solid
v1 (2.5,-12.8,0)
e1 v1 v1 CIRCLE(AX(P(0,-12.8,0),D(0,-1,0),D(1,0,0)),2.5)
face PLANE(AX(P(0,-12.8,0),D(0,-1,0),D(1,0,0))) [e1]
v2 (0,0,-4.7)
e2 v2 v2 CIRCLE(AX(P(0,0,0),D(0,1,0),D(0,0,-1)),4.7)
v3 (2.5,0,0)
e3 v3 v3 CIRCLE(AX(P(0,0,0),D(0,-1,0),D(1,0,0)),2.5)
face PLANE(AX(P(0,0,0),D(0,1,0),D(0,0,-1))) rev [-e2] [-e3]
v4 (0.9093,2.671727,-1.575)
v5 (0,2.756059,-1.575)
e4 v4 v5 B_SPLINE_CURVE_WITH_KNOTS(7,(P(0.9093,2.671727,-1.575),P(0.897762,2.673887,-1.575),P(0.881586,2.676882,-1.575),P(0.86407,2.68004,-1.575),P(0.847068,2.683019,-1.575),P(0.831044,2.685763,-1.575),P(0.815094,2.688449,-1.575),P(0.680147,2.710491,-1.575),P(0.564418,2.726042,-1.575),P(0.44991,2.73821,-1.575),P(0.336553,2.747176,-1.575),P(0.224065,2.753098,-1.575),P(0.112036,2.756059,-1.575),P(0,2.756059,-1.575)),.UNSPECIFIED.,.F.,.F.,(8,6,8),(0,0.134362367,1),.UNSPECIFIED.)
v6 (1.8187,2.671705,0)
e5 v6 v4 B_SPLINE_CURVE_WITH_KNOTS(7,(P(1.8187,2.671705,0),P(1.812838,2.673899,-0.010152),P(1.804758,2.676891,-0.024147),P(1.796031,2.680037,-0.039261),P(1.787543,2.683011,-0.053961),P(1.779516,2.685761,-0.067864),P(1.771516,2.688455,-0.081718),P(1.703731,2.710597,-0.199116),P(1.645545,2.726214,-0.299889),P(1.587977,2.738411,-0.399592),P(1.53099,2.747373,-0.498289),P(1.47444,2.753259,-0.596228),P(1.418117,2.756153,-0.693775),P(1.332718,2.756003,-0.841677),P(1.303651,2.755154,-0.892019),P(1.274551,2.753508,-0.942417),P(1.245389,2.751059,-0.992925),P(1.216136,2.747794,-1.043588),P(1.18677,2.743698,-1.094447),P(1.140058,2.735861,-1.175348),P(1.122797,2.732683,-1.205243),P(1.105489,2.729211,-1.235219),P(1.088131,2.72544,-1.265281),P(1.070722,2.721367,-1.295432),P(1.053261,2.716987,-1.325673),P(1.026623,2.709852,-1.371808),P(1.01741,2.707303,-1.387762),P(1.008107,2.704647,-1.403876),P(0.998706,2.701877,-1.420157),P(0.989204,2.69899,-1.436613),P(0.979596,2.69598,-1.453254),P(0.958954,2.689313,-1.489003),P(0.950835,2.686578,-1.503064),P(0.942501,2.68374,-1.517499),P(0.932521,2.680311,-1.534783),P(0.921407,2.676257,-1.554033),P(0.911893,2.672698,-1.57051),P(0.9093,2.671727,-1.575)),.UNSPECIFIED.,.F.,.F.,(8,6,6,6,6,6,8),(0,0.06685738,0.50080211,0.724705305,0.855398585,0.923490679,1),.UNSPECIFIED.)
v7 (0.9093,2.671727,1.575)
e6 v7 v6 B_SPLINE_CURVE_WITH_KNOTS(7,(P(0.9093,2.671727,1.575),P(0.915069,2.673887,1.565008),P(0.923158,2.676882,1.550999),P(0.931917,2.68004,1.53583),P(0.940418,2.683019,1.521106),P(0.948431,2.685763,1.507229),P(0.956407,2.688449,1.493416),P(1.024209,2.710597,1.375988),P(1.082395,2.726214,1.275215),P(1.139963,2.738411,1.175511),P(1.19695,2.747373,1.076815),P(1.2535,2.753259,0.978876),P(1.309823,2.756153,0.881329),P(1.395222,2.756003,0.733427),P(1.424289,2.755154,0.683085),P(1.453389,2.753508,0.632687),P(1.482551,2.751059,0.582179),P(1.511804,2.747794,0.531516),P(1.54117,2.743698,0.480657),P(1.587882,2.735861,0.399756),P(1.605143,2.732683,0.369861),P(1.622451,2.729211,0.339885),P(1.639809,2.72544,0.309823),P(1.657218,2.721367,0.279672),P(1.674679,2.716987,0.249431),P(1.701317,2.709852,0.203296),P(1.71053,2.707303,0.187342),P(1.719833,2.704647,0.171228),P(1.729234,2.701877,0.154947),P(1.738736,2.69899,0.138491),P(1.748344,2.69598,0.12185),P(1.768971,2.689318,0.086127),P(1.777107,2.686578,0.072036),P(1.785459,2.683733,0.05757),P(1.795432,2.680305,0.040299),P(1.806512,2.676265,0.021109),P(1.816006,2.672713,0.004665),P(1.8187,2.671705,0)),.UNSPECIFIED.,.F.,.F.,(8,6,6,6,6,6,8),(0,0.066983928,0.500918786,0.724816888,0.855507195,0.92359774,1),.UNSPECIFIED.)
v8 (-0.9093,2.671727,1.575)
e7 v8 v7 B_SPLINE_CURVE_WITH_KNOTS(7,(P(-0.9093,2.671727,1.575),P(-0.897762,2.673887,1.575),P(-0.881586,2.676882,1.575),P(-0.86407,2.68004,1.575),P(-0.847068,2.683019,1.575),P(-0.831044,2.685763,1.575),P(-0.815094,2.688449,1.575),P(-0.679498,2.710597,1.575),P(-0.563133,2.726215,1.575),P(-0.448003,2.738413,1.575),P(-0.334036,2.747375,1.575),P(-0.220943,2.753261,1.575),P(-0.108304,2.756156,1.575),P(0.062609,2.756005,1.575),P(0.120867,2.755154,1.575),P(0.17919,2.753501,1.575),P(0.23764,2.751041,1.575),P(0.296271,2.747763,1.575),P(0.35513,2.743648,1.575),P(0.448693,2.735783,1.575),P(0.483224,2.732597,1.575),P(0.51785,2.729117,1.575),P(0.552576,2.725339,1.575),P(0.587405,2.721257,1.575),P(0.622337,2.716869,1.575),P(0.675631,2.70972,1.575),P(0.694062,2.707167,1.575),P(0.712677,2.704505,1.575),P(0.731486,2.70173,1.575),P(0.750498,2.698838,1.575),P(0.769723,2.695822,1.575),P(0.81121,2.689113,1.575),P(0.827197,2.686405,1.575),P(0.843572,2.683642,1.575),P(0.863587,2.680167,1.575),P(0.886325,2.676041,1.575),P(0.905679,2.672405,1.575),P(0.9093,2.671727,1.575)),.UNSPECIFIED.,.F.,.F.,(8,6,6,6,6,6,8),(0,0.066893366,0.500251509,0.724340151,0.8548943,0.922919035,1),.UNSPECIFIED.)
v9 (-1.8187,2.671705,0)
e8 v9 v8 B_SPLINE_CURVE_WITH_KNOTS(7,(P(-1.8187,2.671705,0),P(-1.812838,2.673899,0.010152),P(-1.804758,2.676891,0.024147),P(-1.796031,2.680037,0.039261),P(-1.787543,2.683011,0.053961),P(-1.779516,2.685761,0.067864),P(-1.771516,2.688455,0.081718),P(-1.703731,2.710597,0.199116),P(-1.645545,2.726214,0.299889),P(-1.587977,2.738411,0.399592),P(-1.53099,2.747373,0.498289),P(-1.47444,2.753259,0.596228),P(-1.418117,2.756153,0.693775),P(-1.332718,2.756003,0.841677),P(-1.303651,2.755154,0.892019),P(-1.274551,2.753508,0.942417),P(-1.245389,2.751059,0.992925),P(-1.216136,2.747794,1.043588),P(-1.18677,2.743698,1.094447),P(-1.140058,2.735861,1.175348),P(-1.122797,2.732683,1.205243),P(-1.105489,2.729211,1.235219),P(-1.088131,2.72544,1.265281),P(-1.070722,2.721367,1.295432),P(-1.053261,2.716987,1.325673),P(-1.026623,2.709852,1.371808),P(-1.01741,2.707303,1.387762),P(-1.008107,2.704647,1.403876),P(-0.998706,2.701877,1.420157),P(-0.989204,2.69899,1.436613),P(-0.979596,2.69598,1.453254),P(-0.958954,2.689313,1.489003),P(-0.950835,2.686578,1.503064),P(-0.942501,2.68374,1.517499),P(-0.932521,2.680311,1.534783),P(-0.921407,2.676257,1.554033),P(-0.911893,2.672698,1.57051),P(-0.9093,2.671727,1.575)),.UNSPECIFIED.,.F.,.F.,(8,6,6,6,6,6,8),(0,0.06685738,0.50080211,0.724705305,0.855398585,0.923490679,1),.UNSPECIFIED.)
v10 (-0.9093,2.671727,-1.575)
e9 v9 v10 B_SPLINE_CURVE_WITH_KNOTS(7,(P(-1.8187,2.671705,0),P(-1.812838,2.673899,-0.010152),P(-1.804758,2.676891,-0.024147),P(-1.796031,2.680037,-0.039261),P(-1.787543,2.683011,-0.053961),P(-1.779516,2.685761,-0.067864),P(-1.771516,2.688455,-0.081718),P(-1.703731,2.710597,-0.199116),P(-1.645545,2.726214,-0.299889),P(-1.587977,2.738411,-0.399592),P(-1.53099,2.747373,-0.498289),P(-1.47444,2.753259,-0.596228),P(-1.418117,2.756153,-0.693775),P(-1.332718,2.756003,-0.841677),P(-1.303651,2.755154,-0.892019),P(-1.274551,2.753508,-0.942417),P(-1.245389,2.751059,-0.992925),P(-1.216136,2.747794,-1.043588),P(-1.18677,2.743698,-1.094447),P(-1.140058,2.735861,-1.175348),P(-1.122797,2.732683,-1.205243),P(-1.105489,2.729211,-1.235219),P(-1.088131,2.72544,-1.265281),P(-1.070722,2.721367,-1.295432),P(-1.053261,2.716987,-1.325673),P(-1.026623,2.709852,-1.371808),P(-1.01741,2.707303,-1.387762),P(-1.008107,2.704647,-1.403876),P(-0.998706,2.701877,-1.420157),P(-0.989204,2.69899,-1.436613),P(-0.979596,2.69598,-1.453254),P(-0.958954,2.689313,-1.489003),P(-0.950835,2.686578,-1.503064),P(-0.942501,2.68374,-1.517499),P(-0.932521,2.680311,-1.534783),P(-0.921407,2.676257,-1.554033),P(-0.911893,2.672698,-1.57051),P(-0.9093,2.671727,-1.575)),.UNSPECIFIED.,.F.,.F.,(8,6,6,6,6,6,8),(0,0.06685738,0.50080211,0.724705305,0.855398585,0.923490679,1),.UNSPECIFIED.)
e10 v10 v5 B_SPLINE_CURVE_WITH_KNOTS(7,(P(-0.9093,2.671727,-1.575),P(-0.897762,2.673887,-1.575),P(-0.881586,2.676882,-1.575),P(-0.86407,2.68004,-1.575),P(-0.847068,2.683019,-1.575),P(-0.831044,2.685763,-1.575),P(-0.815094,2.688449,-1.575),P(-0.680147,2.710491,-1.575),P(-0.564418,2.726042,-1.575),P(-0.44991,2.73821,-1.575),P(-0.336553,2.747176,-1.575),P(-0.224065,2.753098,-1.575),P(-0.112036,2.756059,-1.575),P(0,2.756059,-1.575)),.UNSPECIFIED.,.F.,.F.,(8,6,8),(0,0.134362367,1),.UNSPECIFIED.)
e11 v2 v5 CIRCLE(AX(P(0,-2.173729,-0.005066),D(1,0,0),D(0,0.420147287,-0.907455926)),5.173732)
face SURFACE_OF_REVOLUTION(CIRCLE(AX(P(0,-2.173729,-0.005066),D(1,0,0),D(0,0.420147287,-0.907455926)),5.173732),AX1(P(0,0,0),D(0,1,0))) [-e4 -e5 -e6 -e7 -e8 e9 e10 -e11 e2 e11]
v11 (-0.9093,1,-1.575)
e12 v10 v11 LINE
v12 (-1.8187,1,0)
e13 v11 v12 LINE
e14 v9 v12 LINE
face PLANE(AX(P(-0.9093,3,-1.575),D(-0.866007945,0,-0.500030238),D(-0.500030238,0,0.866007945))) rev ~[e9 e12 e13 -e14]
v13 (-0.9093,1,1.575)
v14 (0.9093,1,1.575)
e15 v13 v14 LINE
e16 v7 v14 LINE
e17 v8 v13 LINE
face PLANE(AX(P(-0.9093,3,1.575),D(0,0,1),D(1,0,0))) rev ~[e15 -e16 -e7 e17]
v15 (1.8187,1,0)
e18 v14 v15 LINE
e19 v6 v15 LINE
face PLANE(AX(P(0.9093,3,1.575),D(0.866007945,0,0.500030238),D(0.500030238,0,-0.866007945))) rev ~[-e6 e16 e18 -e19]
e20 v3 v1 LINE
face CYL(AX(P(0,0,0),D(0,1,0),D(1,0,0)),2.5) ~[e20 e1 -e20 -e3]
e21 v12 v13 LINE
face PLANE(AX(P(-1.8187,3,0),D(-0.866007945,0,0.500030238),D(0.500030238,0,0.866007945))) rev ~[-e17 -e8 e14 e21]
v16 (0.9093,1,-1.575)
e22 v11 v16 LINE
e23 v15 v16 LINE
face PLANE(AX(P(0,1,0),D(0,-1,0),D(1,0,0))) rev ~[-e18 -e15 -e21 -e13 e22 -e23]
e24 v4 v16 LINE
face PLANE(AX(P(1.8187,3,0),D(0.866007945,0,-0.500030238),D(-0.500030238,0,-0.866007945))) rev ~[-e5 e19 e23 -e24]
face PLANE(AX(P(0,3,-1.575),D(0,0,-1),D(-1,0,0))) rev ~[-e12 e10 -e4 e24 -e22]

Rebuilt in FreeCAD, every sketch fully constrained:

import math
import FreeCAD as App
import Part
import Sketcher


def add_polygon(sketch, points):
    """Adds a closed chain of lines whose ends are joined by coincident constraints."""
    first, n = sketch.GeometryCount, len(points)
    for a, b in zip(points, points[1:] + points[:1]):
        sketch.addGeometry(Part.LineSegment(App.Vector(*a, 0), App.Vector(*b, 0)), False)
    for i in range(n):
        sketch.addConstraint(Sketcher.Constraint("Coincident", first + i, 2, first + (i + 1) % n, 1))

doc = App.newDocument("Part")
params = doc.addObject("Spreadsheet::Sheet", "Params")
for row, (alias, value) in enumerate([
    ("sketch1_width", "3 mm"),
    ("sketch1_height", "4.7 mm"),
    ("revolution_angle", "360 deg"),
    ("sketch2_diameter", "5 mm"),
    ("pad1_length", "12.8 mm"),
    ("pocket1_length", "2 mm"),
], start=1):
    params.set(f"A{row}", alias)
    params.set(f"B{row}", "=" + value)
    params.setAlias(f"B{row}", alias)

body = doc.addObject("PartDesign::Body", "Body")

# Sketch on YZ plane
sketch1 = doc.addObject("Sketcher::SketchObject", "Sketch")
body.addObject(sketch1)
sketch1.AttachmentSupport = (doc.YZ_Plane, [""])
sketch1.MapMode = "FlatFace"
sketch1.addGeometry([
    Part.LineSegment(App.Vector(3, 0, 0), App.Vector(0, 0, 0)),
    Part.LineSegment(App.Vector(0, 0, 0), App.Vector(0, -4.7, 0)),
    Part.ArcOfCircle(Part.Circle(App.Vector(-2.2, 0, 0), App.Vector(0, 0, 1), 5.2), math.radians(-65), math.radians(0)),
], False)
sketch1.addConstraint([
    Sketcher.Constraint("Coincident", 0, 2, 1, 1),
    Sketcher.Constraint("Coincident", 1, 2, 2, 1),
    Sketcher.Constraint("Coincident", 2, 2, 0, 1),
    Sketcher.Constraint("Horizontal", 0),
    Sketcher.Constraint("Vertical", 1),
    Sketcher.Constraint("Coincident", 0, 2, -1, 1),
    Sketcher.Constraint("DistanceX", 0, 2, 0, 1, 3.0),
    Sketcher.Constraint("DistanceY", 1, 2, 1, 1, 4.7),
    Sketcher.Constraint("Radius", 2, 5.1737),
])
sketch1.setExpression("Constraints[6]", "Params.sketch1_width")
sketch1.setExpression("Constraints[7]", "Params.sketch1_height")
revolution = doc.addObject("PartDesign::Revolution", "Revolution")
body.addObject(revolution)
revolution.Profile = sketch1
revolution.ReferenceAxis = (sketch1, ["H_Axis"])
revolution.setExpression("Angle", "Params.revolution_angle")

# Sketch on XZ plane
sketch2 = doc.addObject("Sketcher::SketchObject", "Sketch001")
body.addObject(sketch2)
sketch2.AttachmentSupport = (doc.XZ_Plane, [""])
sketch2.MapMode = "FlatFace"
sketch2.addGeometry(Part.Circle(App.Vector(0, 0, 0), App.Vector(0, 0, 1), 2.5), False)
sketch2.addConstraint([
    Sketcher.Constraint("Coincident", 0, 3, -1, 1),
    Sketcher.Constraint("Diameter", 0, 5.0),
])
sketch2.setExpression("Constraints[1]", "Params.sketch2_diameter")
pad1 = doc.addObject("PartDesign::Pad", "Pad")
body.addObject(pad1)
pad1.Profile = sketch2
pad1.setExpression("Length", "Params.pad1_length")

# Sketch on XZ plane
sketch3 = doc.addObject("Sketcher::SketchObject", "Sketch002")
body.addObject(sketch3)
sketch3.AttachmentSupport = (doc.XZ_Plane, [""])
sketch3.MapMode = "FlatFace"
sketch3.AttachmentOffset = App.Placement(App.Vector(0, 0, -3), App.Rotation())
add_polygon(sketch3, [(-1.8, 0), (-0.9, -1.6), (0.9, -1.6), (1.8, 0), (0.9, 1.6), (-0.9, 1.6)])  # lines 0-5
sketch3.addConstraint([
    Sketcher.Constraint("Horizontal", 1),
    Sketcher.Constraint("Horizontal", 4),
    Sketcher.Constraint("Symmetric", 0, 2, 3, 2, -1, 1),
    Sketcher.Constraint("Symmetric", 2, 2, 5, 2, -1, 1),
    Sketcher.Constraint("PointOnObject", 2, 2, -1),
    Sketcher.Constraint("Parallel", 2, 5),
    Sketcher.Constraint("Vertical", 1, 2, 3, 2),
    Sketcher.Constraint("DistanceY", 0, 2, -1, 1, 1.575),
    Sketcher.Constraint("DistanceX", 1, 1, 1, 2, 1.8186),
    Sketcher.Constraint("DistanceX", 0, 2, 2, 2, 2.728),
])
pocket1 = doc.addObject("PartDesign::Pocket", "Pocket")
body.addObject(pocket1)
pocket1.Profile = sketch3
pocket1.setExpression("Length", "Params.pocket1_length")
pocket1.Reversed = True

doc.recompute()
